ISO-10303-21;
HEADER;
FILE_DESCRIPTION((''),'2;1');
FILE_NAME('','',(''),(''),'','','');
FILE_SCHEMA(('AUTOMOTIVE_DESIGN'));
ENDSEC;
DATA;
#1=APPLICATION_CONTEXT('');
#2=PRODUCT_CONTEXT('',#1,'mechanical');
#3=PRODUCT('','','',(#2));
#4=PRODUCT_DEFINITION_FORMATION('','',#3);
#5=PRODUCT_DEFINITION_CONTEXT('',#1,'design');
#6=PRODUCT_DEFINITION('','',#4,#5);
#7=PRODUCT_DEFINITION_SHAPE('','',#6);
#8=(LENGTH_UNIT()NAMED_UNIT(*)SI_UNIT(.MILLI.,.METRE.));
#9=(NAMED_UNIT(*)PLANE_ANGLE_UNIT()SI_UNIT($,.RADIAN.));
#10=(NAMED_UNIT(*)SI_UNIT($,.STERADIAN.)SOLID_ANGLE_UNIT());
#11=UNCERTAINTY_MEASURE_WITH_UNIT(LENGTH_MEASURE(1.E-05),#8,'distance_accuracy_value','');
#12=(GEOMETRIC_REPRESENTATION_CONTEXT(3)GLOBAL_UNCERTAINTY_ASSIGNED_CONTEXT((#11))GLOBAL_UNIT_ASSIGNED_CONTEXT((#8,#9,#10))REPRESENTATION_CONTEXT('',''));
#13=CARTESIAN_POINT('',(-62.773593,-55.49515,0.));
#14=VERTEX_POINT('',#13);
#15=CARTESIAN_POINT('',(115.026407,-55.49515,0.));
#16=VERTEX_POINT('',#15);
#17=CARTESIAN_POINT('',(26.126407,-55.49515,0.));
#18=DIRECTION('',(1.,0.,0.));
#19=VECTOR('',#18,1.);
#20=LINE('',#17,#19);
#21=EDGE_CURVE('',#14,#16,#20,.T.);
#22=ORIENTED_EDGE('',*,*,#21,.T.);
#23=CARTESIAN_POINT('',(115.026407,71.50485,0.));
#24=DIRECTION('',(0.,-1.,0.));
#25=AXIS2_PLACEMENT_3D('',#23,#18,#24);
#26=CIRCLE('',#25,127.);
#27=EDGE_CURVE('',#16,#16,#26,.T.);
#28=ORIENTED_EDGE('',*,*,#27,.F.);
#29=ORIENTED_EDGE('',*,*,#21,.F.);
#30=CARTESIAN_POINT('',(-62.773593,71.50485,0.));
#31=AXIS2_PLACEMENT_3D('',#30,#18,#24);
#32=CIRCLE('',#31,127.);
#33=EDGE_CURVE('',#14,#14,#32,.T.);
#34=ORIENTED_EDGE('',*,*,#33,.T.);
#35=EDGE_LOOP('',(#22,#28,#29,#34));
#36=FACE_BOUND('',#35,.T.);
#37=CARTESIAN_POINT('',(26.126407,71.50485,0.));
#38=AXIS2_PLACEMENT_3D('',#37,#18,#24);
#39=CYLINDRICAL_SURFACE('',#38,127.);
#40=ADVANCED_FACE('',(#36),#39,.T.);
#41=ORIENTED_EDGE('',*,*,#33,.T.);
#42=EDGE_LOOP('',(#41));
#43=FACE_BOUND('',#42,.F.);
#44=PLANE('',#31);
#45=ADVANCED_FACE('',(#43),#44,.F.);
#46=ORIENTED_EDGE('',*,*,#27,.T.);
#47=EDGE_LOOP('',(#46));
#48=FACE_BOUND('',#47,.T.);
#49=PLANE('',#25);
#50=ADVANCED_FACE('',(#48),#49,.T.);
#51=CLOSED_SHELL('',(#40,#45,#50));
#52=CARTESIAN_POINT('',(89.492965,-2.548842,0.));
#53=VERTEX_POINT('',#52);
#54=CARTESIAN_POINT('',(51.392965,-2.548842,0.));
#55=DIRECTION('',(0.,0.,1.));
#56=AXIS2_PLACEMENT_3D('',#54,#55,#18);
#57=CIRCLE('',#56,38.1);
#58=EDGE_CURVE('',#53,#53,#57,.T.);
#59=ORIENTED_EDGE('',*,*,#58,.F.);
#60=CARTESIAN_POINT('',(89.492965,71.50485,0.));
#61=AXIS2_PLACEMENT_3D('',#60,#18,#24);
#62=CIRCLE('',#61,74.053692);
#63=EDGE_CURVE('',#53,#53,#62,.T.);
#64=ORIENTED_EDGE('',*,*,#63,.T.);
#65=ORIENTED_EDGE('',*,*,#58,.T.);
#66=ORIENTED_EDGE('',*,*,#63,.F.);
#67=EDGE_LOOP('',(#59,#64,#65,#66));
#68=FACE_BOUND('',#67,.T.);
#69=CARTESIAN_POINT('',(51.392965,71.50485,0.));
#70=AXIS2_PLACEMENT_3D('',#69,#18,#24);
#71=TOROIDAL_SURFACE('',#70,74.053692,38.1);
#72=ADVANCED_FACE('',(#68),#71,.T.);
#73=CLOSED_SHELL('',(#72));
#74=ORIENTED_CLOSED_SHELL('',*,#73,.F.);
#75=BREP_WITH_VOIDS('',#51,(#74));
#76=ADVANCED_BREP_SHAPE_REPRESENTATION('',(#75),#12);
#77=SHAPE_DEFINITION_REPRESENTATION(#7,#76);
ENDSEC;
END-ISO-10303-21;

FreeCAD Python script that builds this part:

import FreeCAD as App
import Part
import Sketcher
from FreeCAD import Vector
Q = App.Units.Quantity


def add_polygon(sketch, points):
    """Adds a closed chain of lines whose ends are joined by coincident constraints."""
    first, n = sketch.GeometryCount, len(points)
    for a, b in zip(points, points[1:] + points[:1]):
        sketch.addGeometry(Part.LineSegment(App.Vector(*a, 0), App.Vector(*b, 0)), False)
    for i in range(n):
        sketch.addConstraint(Sketcher.Constraint("Coincident", first + i, 2, first + (i + 1) % n, 1))

doc = App.newDocument("Part")
body = doc.addObject("PartDesign::Body", "Body")

# Sketch on XY plane
sketch1 = doc.addObject("Sketcher::SketchObject", "Sketch")
body.addObject(sketch1)
sketch1.AttachmentSupport = (doc.XY_Plane, [""])
sketch1.MapMode = "FlatFace"
add_polygon(sketch1, [(-63, 72), (-63, -55), (115, -55), (115, 72)])  # lines 0-3
sketch1.addGeometry(Part.Circle(Vector(51, -3, 0), Vector(0, 0, 1), 38), False)  # 4
sketch1.addGeometry(Part.LineSegment(Vector(-63, 72, 0), Vector(115, 72, 0)), True)  # axis
sketch1.addConstraint([
    Sketcher.Constraint("Vertical", 0),
    Sketcher.Constraint("Horizontal", 1),
    Sketcher.Constraint("Vertical", 2),
    Sketcher.Constraint("Horizontal", 3),
    Sketcher.Constraint("Horizontal", 5),
    Sketcher.Constraint("Coincident", 5, 1, 3, 2),
    Sketcher.Constraint("Vertical", 1, 2, 5, 2),
    Sketcher.Constraint("Diameter", 4, Q("3 in")),
    Sketcher.Constraint("DistanceX", 1, 1, 1, 2, Q("7 in")),
    Sketcher.Constraint("DistanceY", 0, 2, 0, 1, Q("5 in")),
    Sketcher.Constraint("DistanceY", 4, 3, -1, 1, Q("2.548842 mm")),
    Sketcher.Constraint("DistanceY", 0, 2, -1, 1, Q("55.49515 mm")),
    Sketcher.Constraint("DistanceX", -1, 1, 4, 3, Q("51.392965 mm")),
    Sketcher.Constraint("DistanceX", 0, 2, -1, 1, Q("62.773593 mm")),
])
revolution = doc.addObject("PartDesign::Revolution", "Revolution")
body.addObject(revolution)
revolution.Profile = sketch1
revolution.ReferenceAxis = (sketch1, ["Axis0"])
revolution.Angle = 360

doc.recompute()
